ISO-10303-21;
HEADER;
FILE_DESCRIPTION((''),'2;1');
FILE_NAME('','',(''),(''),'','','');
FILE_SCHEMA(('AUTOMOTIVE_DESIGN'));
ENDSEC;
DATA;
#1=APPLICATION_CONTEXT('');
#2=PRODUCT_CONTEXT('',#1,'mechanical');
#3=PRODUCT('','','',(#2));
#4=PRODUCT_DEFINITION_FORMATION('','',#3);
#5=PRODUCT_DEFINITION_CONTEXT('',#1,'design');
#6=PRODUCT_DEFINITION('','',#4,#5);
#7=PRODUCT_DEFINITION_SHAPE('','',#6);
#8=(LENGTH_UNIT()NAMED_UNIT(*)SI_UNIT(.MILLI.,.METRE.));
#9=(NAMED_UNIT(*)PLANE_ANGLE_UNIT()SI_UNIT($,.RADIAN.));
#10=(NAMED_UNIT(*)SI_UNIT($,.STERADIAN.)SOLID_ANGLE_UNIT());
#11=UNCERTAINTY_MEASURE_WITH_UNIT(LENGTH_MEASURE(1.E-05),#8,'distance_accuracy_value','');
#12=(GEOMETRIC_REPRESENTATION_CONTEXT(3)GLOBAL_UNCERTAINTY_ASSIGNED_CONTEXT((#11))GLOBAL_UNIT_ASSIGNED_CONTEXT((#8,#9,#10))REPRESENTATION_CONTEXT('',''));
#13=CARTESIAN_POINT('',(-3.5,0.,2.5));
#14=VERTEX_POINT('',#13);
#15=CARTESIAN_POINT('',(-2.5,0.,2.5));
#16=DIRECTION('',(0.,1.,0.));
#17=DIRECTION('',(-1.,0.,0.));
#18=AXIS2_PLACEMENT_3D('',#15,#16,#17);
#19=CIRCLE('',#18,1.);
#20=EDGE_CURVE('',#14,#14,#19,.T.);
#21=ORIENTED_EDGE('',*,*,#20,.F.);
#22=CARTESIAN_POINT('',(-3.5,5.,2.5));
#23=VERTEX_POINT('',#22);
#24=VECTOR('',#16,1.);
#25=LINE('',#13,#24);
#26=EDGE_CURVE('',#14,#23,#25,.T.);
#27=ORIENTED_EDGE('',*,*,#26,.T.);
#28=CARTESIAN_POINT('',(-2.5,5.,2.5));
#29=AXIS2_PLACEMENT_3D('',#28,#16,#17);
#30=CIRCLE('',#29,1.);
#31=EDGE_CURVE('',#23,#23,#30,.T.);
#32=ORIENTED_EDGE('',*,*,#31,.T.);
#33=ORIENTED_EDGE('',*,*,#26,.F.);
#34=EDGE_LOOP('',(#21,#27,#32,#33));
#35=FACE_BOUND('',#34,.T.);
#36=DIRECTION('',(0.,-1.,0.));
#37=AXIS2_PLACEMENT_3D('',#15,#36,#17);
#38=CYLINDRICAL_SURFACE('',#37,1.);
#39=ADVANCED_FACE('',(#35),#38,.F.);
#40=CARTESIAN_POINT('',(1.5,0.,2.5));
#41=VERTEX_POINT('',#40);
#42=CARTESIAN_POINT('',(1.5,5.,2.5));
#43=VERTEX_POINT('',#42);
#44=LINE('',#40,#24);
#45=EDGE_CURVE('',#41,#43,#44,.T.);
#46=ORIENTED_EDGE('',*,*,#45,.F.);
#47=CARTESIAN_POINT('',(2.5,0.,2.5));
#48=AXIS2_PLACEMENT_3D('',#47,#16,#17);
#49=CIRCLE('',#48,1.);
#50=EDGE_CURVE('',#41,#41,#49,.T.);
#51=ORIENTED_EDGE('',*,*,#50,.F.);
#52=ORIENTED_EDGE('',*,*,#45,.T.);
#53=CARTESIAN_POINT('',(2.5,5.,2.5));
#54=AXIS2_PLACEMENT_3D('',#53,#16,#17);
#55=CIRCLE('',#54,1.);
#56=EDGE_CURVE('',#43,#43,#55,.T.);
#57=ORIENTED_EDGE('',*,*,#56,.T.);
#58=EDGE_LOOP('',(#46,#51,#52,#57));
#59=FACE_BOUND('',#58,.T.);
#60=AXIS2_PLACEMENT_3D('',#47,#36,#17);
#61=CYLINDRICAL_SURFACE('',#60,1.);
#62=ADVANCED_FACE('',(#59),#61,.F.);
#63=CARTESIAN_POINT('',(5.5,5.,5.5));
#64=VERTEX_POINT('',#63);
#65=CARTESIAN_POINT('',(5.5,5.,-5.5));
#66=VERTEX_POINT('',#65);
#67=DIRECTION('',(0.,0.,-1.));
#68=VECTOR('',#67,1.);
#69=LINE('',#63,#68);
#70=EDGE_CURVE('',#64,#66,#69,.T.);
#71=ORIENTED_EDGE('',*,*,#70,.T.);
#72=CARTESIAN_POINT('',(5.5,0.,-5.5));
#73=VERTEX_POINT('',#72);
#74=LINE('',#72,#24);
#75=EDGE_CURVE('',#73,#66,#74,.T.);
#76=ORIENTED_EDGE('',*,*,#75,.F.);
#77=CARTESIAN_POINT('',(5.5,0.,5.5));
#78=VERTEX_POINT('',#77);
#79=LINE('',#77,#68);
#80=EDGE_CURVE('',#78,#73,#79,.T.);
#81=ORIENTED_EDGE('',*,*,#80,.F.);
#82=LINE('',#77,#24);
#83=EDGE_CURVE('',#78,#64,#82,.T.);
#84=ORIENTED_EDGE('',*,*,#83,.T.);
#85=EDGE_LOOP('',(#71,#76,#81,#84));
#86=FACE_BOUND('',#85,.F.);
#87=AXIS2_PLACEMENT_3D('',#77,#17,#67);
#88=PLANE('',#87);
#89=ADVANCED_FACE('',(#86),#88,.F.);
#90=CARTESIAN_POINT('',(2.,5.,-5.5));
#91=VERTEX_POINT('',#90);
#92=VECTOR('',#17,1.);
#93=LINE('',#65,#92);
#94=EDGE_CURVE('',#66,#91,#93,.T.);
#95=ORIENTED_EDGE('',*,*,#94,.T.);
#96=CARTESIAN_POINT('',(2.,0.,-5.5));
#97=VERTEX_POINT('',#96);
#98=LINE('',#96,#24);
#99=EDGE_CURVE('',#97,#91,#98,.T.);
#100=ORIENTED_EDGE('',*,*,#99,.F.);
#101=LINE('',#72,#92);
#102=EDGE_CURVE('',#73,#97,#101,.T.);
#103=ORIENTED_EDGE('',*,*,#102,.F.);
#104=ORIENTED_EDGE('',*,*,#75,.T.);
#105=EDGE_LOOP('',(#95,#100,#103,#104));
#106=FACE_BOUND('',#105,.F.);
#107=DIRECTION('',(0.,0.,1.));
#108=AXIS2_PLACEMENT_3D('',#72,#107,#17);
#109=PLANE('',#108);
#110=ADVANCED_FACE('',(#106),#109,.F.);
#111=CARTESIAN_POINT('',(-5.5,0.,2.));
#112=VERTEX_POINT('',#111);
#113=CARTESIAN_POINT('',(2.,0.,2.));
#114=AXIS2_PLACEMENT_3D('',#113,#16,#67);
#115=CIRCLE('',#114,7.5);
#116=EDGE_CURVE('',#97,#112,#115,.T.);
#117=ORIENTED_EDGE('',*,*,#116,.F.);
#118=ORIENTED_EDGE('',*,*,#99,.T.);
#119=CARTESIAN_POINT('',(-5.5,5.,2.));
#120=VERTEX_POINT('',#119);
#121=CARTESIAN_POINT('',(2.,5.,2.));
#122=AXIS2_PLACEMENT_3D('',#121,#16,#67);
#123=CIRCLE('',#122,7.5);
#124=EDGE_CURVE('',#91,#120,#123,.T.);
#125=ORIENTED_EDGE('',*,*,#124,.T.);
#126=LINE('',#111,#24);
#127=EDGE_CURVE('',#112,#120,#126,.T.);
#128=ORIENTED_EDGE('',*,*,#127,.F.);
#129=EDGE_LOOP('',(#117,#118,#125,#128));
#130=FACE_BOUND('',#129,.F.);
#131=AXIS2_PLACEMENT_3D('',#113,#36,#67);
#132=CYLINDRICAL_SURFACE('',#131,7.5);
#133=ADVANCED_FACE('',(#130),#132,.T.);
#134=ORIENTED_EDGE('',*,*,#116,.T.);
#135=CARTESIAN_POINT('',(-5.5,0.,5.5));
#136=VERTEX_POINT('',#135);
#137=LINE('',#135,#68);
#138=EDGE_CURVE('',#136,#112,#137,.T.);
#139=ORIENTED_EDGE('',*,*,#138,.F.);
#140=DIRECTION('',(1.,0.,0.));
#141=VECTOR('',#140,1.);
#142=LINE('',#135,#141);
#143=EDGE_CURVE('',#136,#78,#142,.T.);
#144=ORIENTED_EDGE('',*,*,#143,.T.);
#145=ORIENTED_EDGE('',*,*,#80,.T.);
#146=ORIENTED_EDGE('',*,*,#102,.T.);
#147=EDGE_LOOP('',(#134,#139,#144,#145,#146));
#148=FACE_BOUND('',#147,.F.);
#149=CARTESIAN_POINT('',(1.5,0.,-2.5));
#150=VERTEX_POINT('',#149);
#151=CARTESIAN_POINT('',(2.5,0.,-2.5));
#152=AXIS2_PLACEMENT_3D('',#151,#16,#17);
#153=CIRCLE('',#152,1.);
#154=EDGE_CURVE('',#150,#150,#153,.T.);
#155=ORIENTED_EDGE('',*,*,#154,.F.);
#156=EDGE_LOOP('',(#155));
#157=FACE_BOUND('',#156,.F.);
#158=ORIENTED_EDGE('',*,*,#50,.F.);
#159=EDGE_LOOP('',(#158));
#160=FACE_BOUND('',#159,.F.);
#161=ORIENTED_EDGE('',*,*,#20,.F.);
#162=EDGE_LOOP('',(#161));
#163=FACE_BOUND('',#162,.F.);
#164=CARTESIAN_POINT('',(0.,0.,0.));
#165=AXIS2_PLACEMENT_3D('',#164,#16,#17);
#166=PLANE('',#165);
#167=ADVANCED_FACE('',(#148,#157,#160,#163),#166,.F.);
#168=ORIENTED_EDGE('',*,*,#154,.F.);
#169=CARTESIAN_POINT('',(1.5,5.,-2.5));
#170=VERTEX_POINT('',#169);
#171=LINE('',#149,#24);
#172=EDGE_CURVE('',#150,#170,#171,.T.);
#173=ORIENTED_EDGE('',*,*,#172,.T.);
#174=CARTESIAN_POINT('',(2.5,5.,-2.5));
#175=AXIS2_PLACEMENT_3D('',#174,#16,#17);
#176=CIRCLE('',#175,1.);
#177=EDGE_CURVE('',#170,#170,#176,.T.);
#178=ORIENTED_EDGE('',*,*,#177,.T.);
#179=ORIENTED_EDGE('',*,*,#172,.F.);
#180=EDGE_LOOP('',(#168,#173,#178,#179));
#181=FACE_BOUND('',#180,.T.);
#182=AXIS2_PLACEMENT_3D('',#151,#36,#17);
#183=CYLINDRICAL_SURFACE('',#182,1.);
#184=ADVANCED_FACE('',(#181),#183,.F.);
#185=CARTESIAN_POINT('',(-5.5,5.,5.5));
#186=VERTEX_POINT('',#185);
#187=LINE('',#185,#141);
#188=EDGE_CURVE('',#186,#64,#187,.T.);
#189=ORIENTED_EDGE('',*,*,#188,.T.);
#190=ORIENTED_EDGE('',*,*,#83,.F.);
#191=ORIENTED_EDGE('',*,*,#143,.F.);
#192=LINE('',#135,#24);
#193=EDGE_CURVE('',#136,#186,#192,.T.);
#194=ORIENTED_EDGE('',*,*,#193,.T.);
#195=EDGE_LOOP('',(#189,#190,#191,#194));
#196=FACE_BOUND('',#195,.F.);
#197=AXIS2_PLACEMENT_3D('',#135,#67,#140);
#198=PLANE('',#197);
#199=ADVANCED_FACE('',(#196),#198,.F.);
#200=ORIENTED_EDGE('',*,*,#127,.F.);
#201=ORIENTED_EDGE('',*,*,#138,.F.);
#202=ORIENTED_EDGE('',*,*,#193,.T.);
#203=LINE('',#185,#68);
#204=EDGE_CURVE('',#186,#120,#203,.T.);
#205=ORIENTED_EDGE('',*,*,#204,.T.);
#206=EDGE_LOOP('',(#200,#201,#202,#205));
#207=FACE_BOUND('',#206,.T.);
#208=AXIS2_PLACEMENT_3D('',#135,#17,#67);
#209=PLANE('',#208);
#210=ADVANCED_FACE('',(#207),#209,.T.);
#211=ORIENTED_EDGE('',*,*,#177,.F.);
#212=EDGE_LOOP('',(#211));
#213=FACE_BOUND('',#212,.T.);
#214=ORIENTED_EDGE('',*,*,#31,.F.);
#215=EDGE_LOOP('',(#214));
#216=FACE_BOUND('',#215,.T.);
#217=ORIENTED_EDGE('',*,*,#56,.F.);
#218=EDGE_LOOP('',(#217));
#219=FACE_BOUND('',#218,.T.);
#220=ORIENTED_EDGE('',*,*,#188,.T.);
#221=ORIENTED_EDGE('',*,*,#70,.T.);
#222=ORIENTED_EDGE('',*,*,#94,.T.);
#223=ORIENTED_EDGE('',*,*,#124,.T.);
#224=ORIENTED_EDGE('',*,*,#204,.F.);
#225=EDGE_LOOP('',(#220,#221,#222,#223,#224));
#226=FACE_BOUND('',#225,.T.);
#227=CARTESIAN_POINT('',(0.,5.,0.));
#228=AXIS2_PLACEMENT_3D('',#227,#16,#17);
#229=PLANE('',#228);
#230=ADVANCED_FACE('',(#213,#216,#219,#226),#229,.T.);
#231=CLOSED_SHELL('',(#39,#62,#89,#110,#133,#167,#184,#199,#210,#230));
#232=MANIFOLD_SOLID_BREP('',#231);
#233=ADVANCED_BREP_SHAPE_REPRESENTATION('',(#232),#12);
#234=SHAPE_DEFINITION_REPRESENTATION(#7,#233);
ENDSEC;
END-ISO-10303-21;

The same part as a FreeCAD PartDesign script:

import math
import FreeCAD as App
import Part
import Sketcher

V = App.Vector

doc = App.newDocument("Part")
body = doc.addObject("PartDesign::Body", "Body")

sketch1 = body.newObject("Sketcher::SketchObject", "Sketch")
sketch1.AttachmentSupport = (doc.getObject("XZ_Plane"), [""])
sketch1.MapMode = "FlatFace"
sketch1.addGeometry([
    Part.LineSegment(V(5.5, 5.5, 0), V(5.5, -5.5, 0)),
    Part.LineSegment(V(5.5, -5.5, 0), V(2, -5.5, 0)),
    Part.ArcOfCircle(Part.Circle(V(2, 2, 0), V(0, 0, 1), 7.5), math.radians(180), math.radians(270)),
    Part.LineSegment(V(-5.5, 2, 0), V(-5.5, 5.5, 0)),
    Part.LineSegment(V(-5.5, 5.5, 0), V(5.5, 5.5, 0)),
    Part.Circle(V(2.5, -2.5, 0), V(0, 0, 1), 1),
    Part.Circle(V(2.5, 2.5, 0), V(0, 0, 1), 1),
    Part.Circle(V(-2.5, 2.5, 0), V(0, 0, 1), 1),
], False)
sketch1.addConstraint([
    Sketcher.Constraint("Coincident", 0, 2, 1, 1),
    Sketcher.Constraint("Tangent", 1, 2, 2, 2),
    Sketcher.Constraint("Tangent", 2, 1, 3, 1),
    Sketcher.Constraint("Coincident", 3, 2, 4, 1),
    Sketcher.Constraint("Coincident", 4, 2, 0, 1),
    Sketcher.Constraint("Vertical", 0),
    Sketcher.Constraint("Horizontal", 1),
    Sketcher.Constraint("Vertical", 3),
    Sketcher.Constraint("Horizontal", 4),
    Sketcher.Constraint("Equal", 5, 6),
    Sketcher.Constraint("Equal", 6, 7),
    Sketcher.Constraint("Symmetric", 5, 3, 7, 3, -1, 1),
    Sketcher.Constraint("Symmetric", 0, 2, 3, 2, -1, 1),
    Sketcher.Constraint("Symmetric", 6, 3, 7, 3, -2),
    Sketcher.Constraint("Equal", 4, 0),
    Sketcher.Constraint("Diameter", 5, 2.0),
    Sketcher.Constraint("Radius", 2, 7.5),
    Sketcher.Constraint("DistanceX", 4, 1, 4, 2, 11.0),
    Sketcher.Constraint("DistanceX", 5, 3, 0, 2, 3.0),
    Sketcher.Constraint("DistanceY", 0, 2, 5, 3, 3.0),
])
pad1 = body.newObject("PartDesign::Pad", "Pad")
pad1.Profile = sketch1
pad1.Length = 5
pad1.Reversed = True

doc.recompute()
